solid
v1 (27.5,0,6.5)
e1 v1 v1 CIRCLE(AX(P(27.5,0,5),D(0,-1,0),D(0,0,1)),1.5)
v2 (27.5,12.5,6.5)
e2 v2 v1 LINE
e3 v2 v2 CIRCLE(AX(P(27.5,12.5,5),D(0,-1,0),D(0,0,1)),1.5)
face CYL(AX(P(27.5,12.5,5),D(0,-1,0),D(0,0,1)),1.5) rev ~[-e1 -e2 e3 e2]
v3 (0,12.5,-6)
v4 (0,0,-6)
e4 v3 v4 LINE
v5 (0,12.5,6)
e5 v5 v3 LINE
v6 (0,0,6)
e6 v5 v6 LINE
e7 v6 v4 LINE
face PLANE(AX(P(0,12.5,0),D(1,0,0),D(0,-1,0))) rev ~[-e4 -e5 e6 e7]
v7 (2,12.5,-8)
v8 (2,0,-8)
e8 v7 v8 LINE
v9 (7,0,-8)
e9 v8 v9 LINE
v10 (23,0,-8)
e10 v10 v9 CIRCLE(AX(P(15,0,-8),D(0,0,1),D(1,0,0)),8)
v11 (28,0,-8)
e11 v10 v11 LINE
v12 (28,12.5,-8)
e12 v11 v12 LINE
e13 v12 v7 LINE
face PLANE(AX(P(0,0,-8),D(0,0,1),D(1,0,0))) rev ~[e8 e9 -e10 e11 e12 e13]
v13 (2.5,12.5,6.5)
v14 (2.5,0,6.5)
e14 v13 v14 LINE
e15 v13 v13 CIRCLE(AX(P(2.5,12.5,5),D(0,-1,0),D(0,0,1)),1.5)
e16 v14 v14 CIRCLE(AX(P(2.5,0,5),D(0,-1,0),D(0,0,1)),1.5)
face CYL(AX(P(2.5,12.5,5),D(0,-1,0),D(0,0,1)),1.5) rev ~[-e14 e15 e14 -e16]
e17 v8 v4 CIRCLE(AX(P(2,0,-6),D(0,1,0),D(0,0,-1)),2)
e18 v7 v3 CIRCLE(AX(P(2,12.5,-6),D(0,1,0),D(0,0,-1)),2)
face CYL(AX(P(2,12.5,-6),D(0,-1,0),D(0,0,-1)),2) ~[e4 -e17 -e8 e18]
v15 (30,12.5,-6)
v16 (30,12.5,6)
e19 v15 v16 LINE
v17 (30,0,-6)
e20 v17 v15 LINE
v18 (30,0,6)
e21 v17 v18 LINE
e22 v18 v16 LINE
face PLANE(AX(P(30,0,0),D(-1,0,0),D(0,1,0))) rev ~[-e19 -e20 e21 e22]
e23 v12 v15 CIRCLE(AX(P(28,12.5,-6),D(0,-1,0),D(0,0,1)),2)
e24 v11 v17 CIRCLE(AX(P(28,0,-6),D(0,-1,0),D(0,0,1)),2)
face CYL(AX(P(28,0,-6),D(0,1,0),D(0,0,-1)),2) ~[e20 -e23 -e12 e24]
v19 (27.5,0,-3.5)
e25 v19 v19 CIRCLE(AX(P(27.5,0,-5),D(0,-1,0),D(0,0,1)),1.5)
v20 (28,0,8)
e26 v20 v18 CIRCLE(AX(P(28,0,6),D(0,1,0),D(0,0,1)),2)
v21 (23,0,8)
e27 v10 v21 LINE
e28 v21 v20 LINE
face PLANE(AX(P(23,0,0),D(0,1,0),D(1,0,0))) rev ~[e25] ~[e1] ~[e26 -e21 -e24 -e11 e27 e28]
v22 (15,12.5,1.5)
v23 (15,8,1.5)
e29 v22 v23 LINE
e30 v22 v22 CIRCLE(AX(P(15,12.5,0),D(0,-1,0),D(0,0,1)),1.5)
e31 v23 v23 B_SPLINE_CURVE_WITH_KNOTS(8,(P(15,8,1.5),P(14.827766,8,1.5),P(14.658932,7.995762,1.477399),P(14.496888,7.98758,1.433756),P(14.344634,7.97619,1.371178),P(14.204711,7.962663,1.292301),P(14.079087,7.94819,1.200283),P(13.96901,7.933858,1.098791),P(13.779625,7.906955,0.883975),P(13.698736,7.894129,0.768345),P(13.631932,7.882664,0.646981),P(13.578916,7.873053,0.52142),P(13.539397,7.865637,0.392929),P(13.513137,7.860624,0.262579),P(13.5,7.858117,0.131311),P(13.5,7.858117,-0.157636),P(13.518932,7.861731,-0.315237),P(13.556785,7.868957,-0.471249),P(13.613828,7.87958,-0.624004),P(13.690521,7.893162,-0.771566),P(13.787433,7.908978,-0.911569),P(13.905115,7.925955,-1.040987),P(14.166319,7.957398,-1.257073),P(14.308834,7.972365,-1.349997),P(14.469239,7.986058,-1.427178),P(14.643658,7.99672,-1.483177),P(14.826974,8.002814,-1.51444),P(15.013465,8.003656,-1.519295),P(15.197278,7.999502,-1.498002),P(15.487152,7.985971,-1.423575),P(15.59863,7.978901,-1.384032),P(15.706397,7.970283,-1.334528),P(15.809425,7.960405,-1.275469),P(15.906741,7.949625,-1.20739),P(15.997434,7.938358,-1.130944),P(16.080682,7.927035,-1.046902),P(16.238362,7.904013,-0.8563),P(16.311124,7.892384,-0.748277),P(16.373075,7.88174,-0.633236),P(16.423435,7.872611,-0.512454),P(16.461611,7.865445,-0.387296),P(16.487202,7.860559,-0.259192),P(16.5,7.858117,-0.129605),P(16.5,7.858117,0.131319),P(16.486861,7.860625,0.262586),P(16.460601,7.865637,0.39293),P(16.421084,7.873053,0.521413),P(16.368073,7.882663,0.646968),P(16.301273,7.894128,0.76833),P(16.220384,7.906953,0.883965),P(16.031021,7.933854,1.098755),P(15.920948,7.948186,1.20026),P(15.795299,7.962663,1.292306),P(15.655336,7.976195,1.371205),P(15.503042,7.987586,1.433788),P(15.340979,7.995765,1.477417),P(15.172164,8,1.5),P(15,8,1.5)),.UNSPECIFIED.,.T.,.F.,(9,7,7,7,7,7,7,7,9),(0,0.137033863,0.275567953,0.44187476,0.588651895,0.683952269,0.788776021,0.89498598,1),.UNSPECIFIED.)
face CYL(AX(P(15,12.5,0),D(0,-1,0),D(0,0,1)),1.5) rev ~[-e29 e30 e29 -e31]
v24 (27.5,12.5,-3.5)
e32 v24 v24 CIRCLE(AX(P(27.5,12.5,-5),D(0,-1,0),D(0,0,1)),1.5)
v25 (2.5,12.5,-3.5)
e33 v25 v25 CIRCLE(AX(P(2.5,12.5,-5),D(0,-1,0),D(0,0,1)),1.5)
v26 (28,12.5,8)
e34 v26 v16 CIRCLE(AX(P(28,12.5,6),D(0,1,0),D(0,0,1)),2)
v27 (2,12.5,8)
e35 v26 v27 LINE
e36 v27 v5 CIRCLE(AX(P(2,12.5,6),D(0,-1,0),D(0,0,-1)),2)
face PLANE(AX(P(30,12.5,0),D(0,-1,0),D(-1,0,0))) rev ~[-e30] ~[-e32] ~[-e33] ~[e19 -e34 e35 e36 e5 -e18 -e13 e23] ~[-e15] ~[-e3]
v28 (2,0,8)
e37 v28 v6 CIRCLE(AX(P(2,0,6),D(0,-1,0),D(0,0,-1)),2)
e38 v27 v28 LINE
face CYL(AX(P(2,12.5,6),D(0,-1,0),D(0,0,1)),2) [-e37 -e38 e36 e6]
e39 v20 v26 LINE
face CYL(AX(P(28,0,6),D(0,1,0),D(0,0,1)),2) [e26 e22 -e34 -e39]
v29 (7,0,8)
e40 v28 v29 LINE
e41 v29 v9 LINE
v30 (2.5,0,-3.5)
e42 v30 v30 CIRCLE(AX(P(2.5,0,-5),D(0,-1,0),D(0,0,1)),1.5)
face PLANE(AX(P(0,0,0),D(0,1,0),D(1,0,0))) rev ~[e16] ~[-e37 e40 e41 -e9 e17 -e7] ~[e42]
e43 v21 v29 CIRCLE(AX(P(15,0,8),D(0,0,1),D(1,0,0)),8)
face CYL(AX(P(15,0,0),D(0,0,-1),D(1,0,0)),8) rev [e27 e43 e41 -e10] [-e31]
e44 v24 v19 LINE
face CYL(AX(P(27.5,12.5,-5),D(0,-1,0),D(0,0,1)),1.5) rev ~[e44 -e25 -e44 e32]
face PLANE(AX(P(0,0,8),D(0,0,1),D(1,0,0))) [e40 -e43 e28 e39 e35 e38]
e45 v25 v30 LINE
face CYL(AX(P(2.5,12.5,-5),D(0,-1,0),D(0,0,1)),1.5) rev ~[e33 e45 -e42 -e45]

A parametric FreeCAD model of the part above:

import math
import FreeCAD as App
import Part
import Sketcher
from FreeCAD import Vector


def edges_at(feature, points):
    """Names of the edges that pass closest to the given points."""
    edges = feature.Shape.Edges
    near = lambda p: min(range(len(edges)), key=lambda i: edges[i].distToShape(Part.Vertex(*p))[0])
    return sorted({f"Edge{near(p) + 1}" for p in points})

doc = App.newDocument("Part")
params = doc.addObject("Spreadsheet::Sheet", "Params")
for row, (alias, value) in enumerate([
    ("sketch1_radius", "8 mm"),
    ("sketch1_width", "30 mm"),
    ("sketch1_height", "12.5 mm"),
    ("pad1_length", "16 mm"),
    ("sketch2_diameter", "3 mm"),
    ("hole_diameter", "3 mm"),
    ("fillet_radius", "2 mm"),
], start=1):
    params.set(f"A{row}", alias)
    params.set(f"B{row}", "=" + value)
    params.setAlias(f"B{row}", alias)

body = doc.addObject("PartDesign::Body", "Body")

# Sketch on XY plane
sketch1 = doc.addObject("Sketcher::SketchObject", "Sketch")
body.addObject(sketch1)
sketch1.AttachmentSupport = (doc.XY_Plane, [""])
sketch1.MapMode = "FlatFace"
sketch1.addGeometry(Part.ArcOfCircle(Part.Circle(Vector(15, 0, 0), Vector(0, 0, 1), 8), math.radians(0), math.radians(180)), False)
sketch1.addGeometry(Part.LineSegment(Vector(23, 0, 0), Vector(30, 0, 0)), False)
sketch1.addGeometry(Part.LineSegment(Vector(30, 0, 0), Vector(30, 12.5, 0)), False)
sketch1.addGeometry(Part.LineSegment(Vector(30, 12.5, 0), Vector(0, 12.5, 0)), False)
sketch1.addGeometry(Part.LineSegment(Vector(0, 12.5, 0), Vector(0, 0, 0)), False)
sketch1.addGeometry(Part.LineSegment(Vector(0, 0, 0), Vector(7, 0, 0)), False)
sketch1.addConstraint(Sketcher.Constraint("Coincident", 0, 1, 1, 1))
sketch1.addConstraint(Sketcher.Constraint("Coincident", 1, 2, 2, 1))
sketch1.addConstraint(Sketcher.Constraint("Coincident", 2, 2, 3, 1))
sketch1.addConstraint(Sketcher.Constraint("Coincident", 3, 2, 4, 1))
sketch1.addConstraint(Sketcher.Constraint("Coincident", 4, 2, 5, 1))
sketch1.addConstraint(Sketcher.Constraint("Coincident", 5, 2, 0, 2))
sketch1.addConstraint(Sketcher.Constraint("Horizontal", 1))
sketch1.addConstraint(Sketcher.Constraint("Vertical", 2))
sketch1.addConstraint(Sketcher.Constraint("Horizontal", 3))
sketch1.addConstraint(Sketcher.Constraint("Vertical", 4))
sketch1.addConstraint(Sketcher.Constraint("Horizontal", 5))
sketch1.addConstraint(Sketcher.Constraint("Coincident", 4, 2, -1, 1))
sketch1.addConstraint(Sketcher.Constraint("PointOnObject", 0, 3, -1))
sketch1.addConstraint(Sketcher.Constraint("PointOnObject", 0, 1, -1))
sketch1.addConstraint(Sketcher.Constraint("Equal", 1, 5))
sketch1.addConstraint(Sketcher.Constraint("Radius", 0, 8.0))
sketch1.addConstraint(Sketcher.Constraint("DistanceX", 3, 2, 3, 1, 30.0))
sketch1.addConstraint(Sketcher.Constraint("DistanceY", 2, 1, 2, 2, 12.5))
sketch1.setExpression("Constraints[15]", "Params.sketch1_radius")
sketch1.setExpression("Constraints[16]", "Params.sketch1_width")
sketch1.setExpression("Constraints[17]", "Params.sketch1_height")
pad1 = doc.addObject("PartDesign::Pad", "Pad")
body.addObject(pad1)
pad1.Profile = sketch1
pad1.setExpression("Length", "Params.pad1_length")
pad1.Midplane = True

# Sketch on XZ plane
sketch2 = doc.addObject("Sketcher::SketchObject", "Sketch001")
body.addObject(sketch2)
sketch2.AttachmentSupport = (doc.XZ_Plane, [""])
sketch2.MapMode = "FlatFace"
sketch2.AttachmentOffset = App.Placement(Vector(0, 0, -12.5), App.Rotation())
sketch2.addGeometry(Part.Circle(Vector(2.5, 5, 0), Vector(0, 0, 1), 1.5), False)
sketch2.addGeometry(Part.Circle(Vector(2.5, -5, 0), Vector(0, 0, 1), 1.5), False)
sketch2.addGeometry(Part.Circle(Vector(27.5, -5, 0), Vector(0, 0, 1), 1.5), False)
sketch2.addGeometry(Part.Circle(Vector(27.5, 5, 0), Vector(0, 0, 1), 1.5), False)
sketch2.addGeometry(Part.Circle(Vector(15, 0, 0), Vector(0, 0, 1), 1.5), False)
sketch2.addConstraint(Sketcher.Constraint("Equal", 0, 1))
sketch2.addConstraint(Sketcher.Constraint("Equal", 1, 2))
sketch2.addConstraint(Sketcher.Constraint("Equal", 2, 3))
sketch2.addConstraint(Sketcher.Constraint("Equal", 3, 4))
sketch2.addConstraint(Sketcher.Constraint("Symmetric", 0, 3, 1, 3, -1))
sketch2.addConstraint(Sketcher.Constraint("Symmetric", 2, 3, 3, 3, -1))
sketch2.addConstraint(Sketcher.Constraint("PointOnObject", 4, 3, -1))
sketch2.addConstraint(Sketcher.Constraint("Horizontal", 1, 3, 2, 3))
sketch2.addConstraint(Sketcher.Constraint("Diameter", 0, 3.0))
sketch2.addConstraint(Sketcher.Constraint("DistanceY", -1, 1, 0, 3, 5.0))
sketch2.addConstraint(Sketcher.Constraint("DistanceX", -1, 1, 4, 3, 15.0))
sketch2.addConstraint(Sketcher.Constraint("DistanceX", 1, 3, 2, 3, 25.0))
sketch2.addConstraint(Sketcher.Constraint("DistanceX", -1, 1, 0, 3, 2.5))
sketch2.setExpression("Constraints[8]", "Params.sketch2_diameter")
doc.recompute()
hole = doc.addObject("PartDesign::Hole", "Hole")
body.addObject(hole)
hole.Profile = sketch2
hole.ThreadType = "None"
hole.setExpression("Diameter", "Params.hole_diameter")
hole.DepthType = "ThroughAll"
hole.Reversed = True
doc.recompute()

fillet = doc.addObject("PartDesign::Fillet", "Fillet")
body.addObject(fillet)
fillet.Base = (hole, edges_at(hole, [
    (0, 6.25, 8),
    (30, 6.25, -8),
    (30, 6.25, 8),
    (0, 6.25, -8),
]))
fillet.setExpression("Radius", "Params.fillet_radius")

doc.recompute()
